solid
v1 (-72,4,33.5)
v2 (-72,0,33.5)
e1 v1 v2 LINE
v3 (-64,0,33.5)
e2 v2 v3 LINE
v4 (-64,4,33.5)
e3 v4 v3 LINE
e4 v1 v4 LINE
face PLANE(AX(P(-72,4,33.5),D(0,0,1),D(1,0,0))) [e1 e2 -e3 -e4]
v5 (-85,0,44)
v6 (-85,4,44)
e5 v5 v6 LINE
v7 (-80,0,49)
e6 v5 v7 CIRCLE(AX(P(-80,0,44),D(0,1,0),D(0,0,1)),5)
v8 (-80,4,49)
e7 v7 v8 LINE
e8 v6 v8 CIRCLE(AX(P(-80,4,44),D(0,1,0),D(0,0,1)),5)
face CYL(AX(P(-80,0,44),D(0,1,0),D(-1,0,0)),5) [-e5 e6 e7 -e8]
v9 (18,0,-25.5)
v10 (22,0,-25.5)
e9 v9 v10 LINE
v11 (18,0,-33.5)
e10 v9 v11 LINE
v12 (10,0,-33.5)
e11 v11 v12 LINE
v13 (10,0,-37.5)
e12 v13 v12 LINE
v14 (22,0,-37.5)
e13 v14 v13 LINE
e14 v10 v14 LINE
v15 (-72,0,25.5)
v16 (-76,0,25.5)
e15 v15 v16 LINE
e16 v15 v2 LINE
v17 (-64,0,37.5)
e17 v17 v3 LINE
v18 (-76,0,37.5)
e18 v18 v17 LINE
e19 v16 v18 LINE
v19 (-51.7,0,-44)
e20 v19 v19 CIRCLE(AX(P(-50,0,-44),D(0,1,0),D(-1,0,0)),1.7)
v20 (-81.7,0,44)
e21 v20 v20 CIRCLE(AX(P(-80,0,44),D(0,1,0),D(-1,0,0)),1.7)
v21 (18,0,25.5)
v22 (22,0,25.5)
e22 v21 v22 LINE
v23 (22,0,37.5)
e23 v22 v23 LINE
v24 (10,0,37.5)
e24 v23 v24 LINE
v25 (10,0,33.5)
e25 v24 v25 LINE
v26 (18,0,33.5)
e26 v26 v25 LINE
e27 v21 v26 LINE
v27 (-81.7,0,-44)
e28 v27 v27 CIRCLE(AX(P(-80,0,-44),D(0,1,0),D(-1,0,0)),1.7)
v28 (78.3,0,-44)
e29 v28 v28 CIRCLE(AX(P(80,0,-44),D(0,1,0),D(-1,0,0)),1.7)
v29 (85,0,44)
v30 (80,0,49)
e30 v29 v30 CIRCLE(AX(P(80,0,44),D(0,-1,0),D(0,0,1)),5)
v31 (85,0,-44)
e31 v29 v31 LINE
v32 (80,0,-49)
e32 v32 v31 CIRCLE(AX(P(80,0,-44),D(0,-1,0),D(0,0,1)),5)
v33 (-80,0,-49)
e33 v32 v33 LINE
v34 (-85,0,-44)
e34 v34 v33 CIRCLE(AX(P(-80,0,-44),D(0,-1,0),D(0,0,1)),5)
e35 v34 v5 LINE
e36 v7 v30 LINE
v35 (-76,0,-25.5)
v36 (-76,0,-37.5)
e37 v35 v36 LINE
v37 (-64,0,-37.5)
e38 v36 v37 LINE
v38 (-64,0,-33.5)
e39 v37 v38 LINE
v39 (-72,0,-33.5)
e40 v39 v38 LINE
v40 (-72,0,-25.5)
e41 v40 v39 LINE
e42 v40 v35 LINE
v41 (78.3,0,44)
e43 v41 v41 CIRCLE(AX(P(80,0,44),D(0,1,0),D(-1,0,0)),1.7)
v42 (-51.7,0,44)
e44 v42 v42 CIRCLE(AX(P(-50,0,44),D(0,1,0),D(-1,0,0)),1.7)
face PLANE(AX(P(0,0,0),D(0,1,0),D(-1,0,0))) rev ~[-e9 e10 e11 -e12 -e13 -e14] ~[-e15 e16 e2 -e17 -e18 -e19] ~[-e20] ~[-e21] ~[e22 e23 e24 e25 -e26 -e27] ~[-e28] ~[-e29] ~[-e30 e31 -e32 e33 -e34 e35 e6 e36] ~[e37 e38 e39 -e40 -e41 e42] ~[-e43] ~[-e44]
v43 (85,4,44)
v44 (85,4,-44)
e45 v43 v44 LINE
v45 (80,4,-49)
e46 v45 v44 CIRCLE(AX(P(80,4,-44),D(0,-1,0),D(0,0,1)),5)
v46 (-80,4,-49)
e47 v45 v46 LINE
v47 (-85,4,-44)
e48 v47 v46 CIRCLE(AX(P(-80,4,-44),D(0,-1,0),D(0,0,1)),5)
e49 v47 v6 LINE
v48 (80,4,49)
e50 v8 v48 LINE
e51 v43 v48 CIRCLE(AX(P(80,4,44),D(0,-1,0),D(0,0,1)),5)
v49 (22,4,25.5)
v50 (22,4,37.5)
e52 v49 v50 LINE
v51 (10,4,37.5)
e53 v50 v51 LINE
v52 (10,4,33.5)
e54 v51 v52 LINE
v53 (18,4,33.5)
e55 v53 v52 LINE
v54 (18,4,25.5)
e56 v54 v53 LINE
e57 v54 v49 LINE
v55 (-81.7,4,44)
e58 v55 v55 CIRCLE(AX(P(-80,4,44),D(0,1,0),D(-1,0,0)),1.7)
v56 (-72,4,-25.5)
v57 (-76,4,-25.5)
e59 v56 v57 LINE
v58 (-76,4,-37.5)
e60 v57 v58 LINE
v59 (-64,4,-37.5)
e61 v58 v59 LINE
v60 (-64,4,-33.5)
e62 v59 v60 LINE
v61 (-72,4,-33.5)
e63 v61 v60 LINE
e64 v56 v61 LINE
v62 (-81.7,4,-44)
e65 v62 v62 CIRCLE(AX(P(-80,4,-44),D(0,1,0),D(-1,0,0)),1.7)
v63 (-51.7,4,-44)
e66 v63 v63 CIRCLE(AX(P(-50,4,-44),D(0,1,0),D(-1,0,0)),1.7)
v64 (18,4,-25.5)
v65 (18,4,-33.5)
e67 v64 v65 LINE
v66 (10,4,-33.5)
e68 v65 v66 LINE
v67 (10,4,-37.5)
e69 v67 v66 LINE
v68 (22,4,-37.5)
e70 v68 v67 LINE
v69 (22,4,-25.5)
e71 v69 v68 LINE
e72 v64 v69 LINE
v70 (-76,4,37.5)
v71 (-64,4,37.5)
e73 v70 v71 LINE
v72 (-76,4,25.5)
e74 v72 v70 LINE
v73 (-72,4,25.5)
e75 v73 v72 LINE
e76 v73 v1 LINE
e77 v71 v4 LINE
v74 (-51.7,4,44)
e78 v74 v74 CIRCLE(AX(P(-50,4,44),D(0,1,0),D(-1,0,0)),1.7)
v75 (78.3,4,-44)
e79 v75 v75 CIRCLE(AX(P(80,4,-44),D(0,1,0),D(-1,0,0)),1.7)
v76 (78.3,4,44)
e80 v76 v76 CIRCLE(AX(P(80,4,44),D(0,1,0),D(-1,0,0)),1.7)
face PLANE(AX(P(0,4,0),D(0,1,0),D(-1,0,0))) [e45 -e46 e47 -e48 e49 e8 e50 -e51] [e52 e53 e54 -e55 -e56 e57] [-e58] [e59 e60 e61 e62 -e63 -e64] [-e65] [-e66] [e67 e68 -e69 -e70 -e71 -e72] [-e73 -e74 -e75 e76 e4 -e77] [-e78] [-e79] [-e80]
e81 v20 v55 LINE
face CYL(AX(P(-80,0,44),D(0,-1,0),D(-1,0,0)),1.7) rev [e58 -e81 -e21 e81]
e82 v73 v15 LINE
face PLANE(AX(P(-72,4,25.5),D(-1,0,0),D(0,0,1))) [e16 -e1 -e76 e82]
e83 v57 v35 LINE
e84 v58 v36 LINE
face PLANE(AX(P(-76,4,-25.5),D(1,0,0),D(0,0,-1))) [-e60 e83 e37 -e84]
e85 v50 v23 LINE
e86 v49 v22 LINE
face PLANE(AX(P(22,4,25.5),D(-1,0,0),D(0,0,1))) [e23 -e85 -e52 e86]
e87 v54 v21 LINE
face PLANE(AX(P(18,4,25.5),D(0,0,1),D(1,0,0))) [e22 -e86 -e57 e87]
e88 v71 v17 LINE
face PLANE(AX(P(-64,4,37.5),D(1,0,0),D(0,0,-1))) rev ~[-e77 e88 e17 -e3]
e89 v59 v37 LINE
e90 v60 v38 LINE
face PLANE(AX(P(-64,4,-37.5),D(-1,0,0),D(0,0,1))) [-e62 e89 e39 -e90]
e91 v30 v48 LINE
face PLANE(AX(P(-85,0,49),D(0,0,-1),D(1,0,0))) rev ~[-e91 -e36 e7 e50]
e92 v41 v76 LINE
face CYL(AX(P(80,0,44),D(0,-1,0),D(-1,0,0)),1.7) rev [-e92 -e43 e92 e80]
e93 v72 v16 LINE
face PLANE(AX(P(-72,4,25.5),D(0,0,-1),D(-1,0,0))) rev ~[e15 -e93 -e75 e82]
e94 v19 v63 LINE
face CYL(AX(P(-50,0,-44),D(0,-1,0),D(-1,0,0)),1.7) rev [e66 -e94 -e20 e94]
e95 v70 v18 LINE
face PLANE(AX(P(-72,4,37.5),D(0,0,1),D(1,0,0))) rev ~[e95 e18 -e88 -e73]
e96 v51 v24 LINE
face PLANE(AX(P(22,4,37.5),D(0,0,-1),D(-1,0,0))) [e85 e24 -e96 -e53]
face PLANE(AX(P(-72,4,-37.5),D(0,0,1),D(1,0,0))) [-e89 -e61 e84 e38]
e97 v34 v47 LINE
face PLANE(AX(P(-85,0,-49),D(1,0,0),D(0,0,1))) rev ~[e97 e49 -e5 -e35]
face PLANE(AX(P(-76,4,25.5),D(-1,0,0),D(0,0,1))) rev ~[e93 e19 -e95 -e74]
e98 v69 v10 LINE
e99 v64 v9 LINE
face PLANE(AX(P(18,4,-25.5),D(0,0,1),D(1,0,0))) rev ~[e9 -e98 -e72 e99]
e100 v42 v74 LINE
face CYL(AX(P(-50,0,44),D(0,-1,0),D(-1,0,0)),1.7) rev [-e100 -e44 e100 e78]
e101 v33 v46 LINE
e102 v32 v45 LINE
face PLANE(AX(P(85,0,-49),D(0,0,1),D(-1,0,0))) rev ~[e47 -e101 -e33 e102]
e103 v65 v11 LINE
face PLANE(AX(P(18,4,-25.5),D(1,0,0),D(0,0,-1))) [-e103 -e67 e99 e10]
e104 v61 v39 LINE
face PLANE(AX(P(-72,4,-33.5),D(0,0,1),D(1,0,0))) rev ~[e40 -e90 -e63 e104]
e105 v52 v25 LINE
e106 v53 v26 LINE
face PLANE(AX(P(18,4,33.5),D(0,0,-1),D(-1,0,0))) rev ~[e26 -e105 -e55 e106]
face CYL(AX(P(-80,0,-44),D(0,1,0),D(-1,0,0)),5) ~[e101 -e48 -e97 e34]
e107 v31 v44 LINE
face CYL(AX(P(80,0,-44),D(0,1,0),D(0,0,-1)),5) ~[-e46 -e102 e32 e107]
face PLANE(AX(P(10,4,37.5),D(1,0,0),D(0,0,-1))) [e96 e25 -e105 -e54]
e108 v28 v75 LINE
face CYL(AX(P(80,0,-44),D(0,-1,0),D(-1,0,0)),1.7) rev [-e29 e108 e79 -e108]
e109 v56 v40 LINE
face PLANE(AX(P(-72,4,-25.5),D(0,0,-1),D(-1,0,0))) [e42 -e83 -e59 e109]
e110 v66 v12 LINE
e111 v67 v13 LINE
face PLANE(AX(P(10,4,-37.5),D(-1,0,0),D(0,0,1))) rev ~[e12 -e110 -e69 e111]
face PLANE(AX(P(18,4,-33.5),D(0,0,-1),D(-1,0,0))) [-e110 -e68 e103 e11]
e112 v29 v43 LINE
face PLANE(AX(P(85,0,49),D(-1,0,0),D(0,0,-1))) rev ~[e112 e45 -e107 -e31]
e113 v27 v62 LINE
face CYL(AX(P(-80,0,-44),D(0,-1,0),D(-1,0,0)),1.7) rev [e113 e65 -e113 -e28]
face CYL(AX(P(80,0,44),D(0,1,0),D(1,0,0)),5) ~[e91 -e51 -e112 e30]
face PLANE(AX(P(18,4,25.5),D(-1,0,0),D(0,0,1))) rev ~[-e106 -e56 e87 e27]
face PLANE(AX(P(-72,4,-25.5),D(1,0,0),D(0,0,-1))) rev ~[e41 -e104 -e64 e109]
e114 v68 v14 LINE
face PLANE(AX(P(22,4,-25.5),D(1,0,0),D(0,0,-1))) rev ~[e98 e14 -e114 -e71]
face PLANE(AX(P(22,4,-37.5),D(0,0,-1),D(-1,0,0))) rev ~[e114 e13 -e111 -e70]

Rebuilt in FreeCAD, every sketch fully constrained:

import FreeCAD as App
import Part
import Sketcher
from FreeCAD import Vector
Q = App.Units.Quantity


def edges_at(feature, points):
    """Names of the edges that pass closest to the given points."""
    edges = feature.Shape.Edges
    near = lambda p: min(range(len(edges)), key=lambda i: edges[i].distToShape(Part.Vertex(*p))[0])
    return sorted({f"Edge{near(p) + 1}" for p in points})

doc = App.newDocument("Part")
body = doc.addObject("PartDesign::Body", "Body")

# Sketch on XZ plane
sketch1 = body.newObject("Sketcher::SketchObject", "Sketch")
sketch1.AttachmentSupport = (doc.getObject("XZ_Plane"), [""])
sketch1.MapMode = "FlatFace"
sketch1.addGeometry([
    Part.LineSegment(Vector(-85, -49, 0), Vector(-85, 49, 0)),  # 0
    Part.LineSegment(Vector(-85, 49, 0), Vector(85, 49, 0)),  # 1
    Part.LineSegment(Vector(85, 49, 0), Vector(85, -49, 0)),  # 2
    Part.LineSegment(Vector(85, -49, 0), Vector(-85, -49, 0)),  # 3
    Part.Circle(Vector(80, -44, 0), Vector(0, 0, 1), 1.7),  # 4
    Part.Circle(Vector(-50, -44, 0), Vector(0, 0, 1), 1.7),  # 5
    Part.Circle(Vector(-80, -44, 0), Vector(0, 0, 1), 1.7),  # 6
    Part.Circle(Vector(80, 44, 0), Vector(0, 0, 1), 1.7),  # 7
    Part.Circle(Vector(-50, 44, 0), Vector(0, 0, 1), 1.7),  # 8
    Part.Circle(Vector(-80, 44, 0), Vector(0, 0, 1), 1.7),  # 9
], False)
sketch1.addConstraint([
    Sketcher.Constraint("Coincident", 0, 2, 1, 1),
    Sketcher.Constraint("Coincident", 1, 2, 2, 1),
    Sketcher.Constraint("Coincident", 2, 2, 3, 1),
    Sketcher.Constraint("Coincident", 3, 2, 0, 1),
    Sketcher.Constraint("Vertical", 0),
    Sketcher.Constraint("Horizontal", 1),
    Sketcher.Constraint("Vertical", 2),
    Sketcher.Constraint("Horizontal", 3),
    Sketcher.Constraint("Equal", 4, 5),
    Sketcher.Constraint("Equal", 5, 6),
    Sketcher.Constraint("Equal", 6, 7),
    Sketcher.Constraint("Equal", 7, 8),
    Sketcher.Constraint("Equal", 8, 9),
    Sketcher.Constraint("Symmetric", 6, 3, 7, 3, -1, 1),
    Sketcher.Constraint("Symmetric", 4, 3, 9, 3, -1, 1),
    Sketcher.Constraint("Symmetric", 0, 2, 2, 2, -1, 1),
    Sketcher.Constraint("Symmetric", 4, 3, 6, 3, -2),
    Sketcher.Constraint("Symmetric", 5, 3, 8, 3, -1),
    Sketcher.Constraint("Horizontal", 4, 3, 5, 3),
    Sketcher.Constraint("Diameter", 4, Q("3.4 mm")),
    Sketcher.Constraint("DistanceX", 1, 1, 1, 2, Q("170 mm")),
    Sketcher.Constraint("DistanceY", 0, 1, 0, 2, Q("98 mm")),
    Sketcher.Constraint("DistanceX", 6, 3, 5, 3, Q("30 mm")),
    Sketcher.Constraint("DistanceX", 6, 3, 4, 3, Q("160 mm")),
    Sketcher.Constraint("DistanceY", 4, 3, 7, 3, Q("88 mm")),
])
pad1 = body.newObject("PartDesign::Pad", "Pad")
pad1.Profile = sketch1
pad1.Length = 4
pad1.Reversed = True
doc.recompute()

fillet = body.newObject("PartDesign::Fillet", "Fillet")
fillet.Base = (pad1, edges_at(pad1, [
    (85, 2, 49),
    (85, 2, -49),
    (-85, 2, 49),
    (-85, 2, -49),
]))
fillet.Radius = 5

# Sketch on XZ plane
sketch2 = body.newObject("Sketcher::SketchObject", "Sketch001")
sketch2.AttachmentSupport = (doc.getObject("XZ_Plane"), [""])
sketch2.MapMode = "FlatFace"
sketch2.AttachmentOffset = App.Placement(Vector(0, 0, -4), App.Rotation())
sketch2.addGeometry([
    Part.LineSegment(Vector(-64, 33.5, 0), Vector(-72, 33.5, 0)),  # 0
    Part.LineSegment(Vector(-72, 33.5, 0), Vector(-72, 25.5, 0)),  # 1
    Part.LineSegment(Vector(-72, 25.5, 0), Vector(-76, 25.5, 0)),  # 2
    Part.LineSegment(Vector(-76, 25.5, 0), Vector(-76, 37.5, 0)),  # 3
    Part.LineSegment(Vector(-76, 37.5, 0), Vector(-64, 37.5, 0)),  # 4
    Part.LineSegment(Vector(-64, 37.5, 0), Vector(-64, 33.5, 0)),  # 5
    Part.LineSegment(Vector(10, -33.5, 0), Vector(18, -33.5, 0)),  # 6
    Part.LineSegment(Vector(18, -33.5, 0), Vector(18, -25.5, 0)),  # 7
    Part.LineSegment(Vector(18, -25.5, 0), Vector(22, -25.5, 0)),  # 8
    Part.LineSegment(Vector(22, -25.5, 0), Vector(22, -37.5, 0)),  # 9
    Part.LineSegment(Vector(22, -37.5, 0), Vector(10, -37.5, 0)),  # 10
    Part.LineSegment(Vector(10, -37.5, 0), Vector(10, -33.5, 0)),  # 11
    Part.LineSegment(Vector(-64, -37.5, 0), Vector(-76, -37.5, 0)),  # 12
    Part.LineSegment(Vector(-76, -37.5, 0), Vector(-76, -25.5, 0)),  # 13
    Part.LineSegment(Vector(-76, -25.5, 0), Vector(-72, -25.5, 0)),  # 14
    Part.LineSegment(Vector(-72, -25.5, 0), Vector(-72, -33.5, 0)),  # 15
    Part.LineSegment(Vector(-72, -33.5, 0), Vector(-64, -33.5, 0)),  # 16
    Part.LineSegment(Vector(-64, -33.5, 0), Vector(-64, -37.5, 0)),  # 17
    Part.LineSegment(Vector(18, 25.5, 0), Vector(18, 33.5, 0)),  # 18
    Part.LineSegment(Vector(18, 33.5, 0), Vector(10, 33.5, 0)),  # 19
    Part.LineSegment(Vector(10, 33.5, 0), Vector(10, 37.5, 0)),  # 20
    Part.LineSegment(Vector(10, 37.5, 0), Vector(22, 37.5, 0)),  # 21
    Part.LineSegment(Vector(22, 37.5, 0), Vector(22, 25.5, 0)),  # 22
    Part.LineSegment(Vector(22, 25.5, 0), Vector(18, 25.5, 0)),  # 23
], False)
sketch2.addConstraint([
    Sketcher.Constraint("Coincident", 0, 2, 1, 1),
    Sketcher.Constraint("Coincident", 1, 2, 2, 1),
    Sketcher.Constraint("Coincident", 2, 2, 3, 1),
    Sketcher.Constraint("Coincident", 3, 2, 4, 1),
    Sketcher.Constraint("Coincident", 4, 2, 5, 1),
    Sketcher.Constraint("Coincident", 5, 2, 0, 1),
    Sketcher.Constraint("Coincident", 6, 2, 7, 1),
    Sketcher.Constraint("Coincident", 7, 2, 8, 1),
    Sketcher.Constraint("Coincident", 8, 2, 9, 1),
    Sketcher.Constraint("Coincident", 9, 2, 10, 1),
    Sketcher.Constraint("Coincident", 10, 2, 11, 1),
    Sketcher.Constraint("Coincident", 11, 2, 6, 1),
    Sketcher.Constraint("Coincident", 12, 2, 13, 1),
    Sketcher.Constraint("Coincident", 13, 2, 14, 1),
    Sketcher.Constraint("Coincident", 14, 2, 15, 1),
    Sketcher.Constraint("Coincident", 15, 2, 16, 1),
    Sketcher.Constraint("Coincident", 16, 2, 17, 1),
    Sketcher.Constraint("Coincident", 17, 2, 12, 1),
    Sketcher.Constraint("Coincident", 18, 2, 19, 1),
    Sketcher.Constraint("Coincident", 19, 2, 20, 1),
    Sketcher.Constraint("Coincident", 20, 2, 21, 1),
    Sketcher.Constraint("Coincident", 21, 2, 22, 1),
    Sketcher.Constraint("Coincident", 22, 2, 23, 1),
    Sketcher.Constraint("Coincident", 23, 2, 18, 1),
    Sketcher.Constraint("Horizontal", 0),
    Sketcher.Constraint("Vertical", 1),
    Sketcher.Constraint("Horizontal", 2),
    Sketcher.Constraint("Vertical", 3),
    Sketcher.Constraint("Horizontal", 4),
    Sketcher.Constraint("Vertical", 5),
    Sketcher.Constraint("Horizontal", 6),
    Sketcher.Constraint("Vertical", 7),
    Sketcher.Constraint("Horizontal", 8),
    Sketcher.Constraint("Vertical", 9),
    Sketcher.Constraint("Horizontal", 10),
    Sketcher.Constraint("Vertical", 11),
    Sketcher.Constraint("Horizontal", 12),
    Sketcher.Constraint("Vertical", 13),
    Sketcher.Constraint("Horizontal", 14),
    Sketcher.Constraint("Vertical", 15),
    Sketcher.Constraint("Horizontal", 16),
    Sketcher.Constraint("Vertical", 17),
    Sketcher.Constraint("Vertical", 18),
    Sketcher.Constraint("Horizontal", 19),
    Sketcher.Constraint("Vertical", 20),
    Sketcher.Constraint("Horizontal", 21),
    Sketcher.Constraint("Vertical", 22),
    Sketcher.Constraint("Horizontal", 23),
    Sketcher.Constraint("Symmetric", 3, 2, 12, 2, -1),
    Sketcher.Constraint("Symmetric", 1, 2, 14, 2, -1),
    Sketcher.Constraint("Symmetric", 5, 2, 16, 2, -1),
    Sketcher.Constraint("Symmetric", 6, 2, 18, 2, -1),
    Sketcher.Constraint("Symmetric", 10, 2, 20, 2, -1),
    Sketcher.Constraint("Symmetric", 8, 2, 22, 2, -1),
    Sketcher.Constraint("Horizontal", 10, 2, 12, 2),
    Sketcher.Constraint("Horizontal", 8, 2, 13, 2),
    Sketcher.Constraint("Horizontal", 11, 2, 15, 2),
    Sketcher.Constraint("Equal", 0, 6),
    Sketcher.Constraint("Equal", 2, 8),
    Sketcher.Constraint("Equal", 19, 1),
    Sketcher.Constraint("Equal", 21, 3),
    Sketcher.Constraint("DistanceX", 0, 2, 0, 1, Q("8 mm")),
    Sketcher.Constraint("DistanceX", 4, 1, 4, 2, Q("12 mm")),
    Sketcher.Constraint("DistanceY", 6, 2, 5, 2, Q("67 mm")),
    Sketcher.Constraint("DistanceX", 1, 2, 6, 2, Q("90 mm")),
    Sketcher.Constraint("DistanceX", 0, 2, -1, 1, Q("72 mm")),
])
pocket1 = body.newObject("PartDesign::Pocket", "Pocket")
pocket1.Profile = sketch2
pocket1.Type = "ThroughAll"
pocket1.Reversed = True

doc.recompute()
